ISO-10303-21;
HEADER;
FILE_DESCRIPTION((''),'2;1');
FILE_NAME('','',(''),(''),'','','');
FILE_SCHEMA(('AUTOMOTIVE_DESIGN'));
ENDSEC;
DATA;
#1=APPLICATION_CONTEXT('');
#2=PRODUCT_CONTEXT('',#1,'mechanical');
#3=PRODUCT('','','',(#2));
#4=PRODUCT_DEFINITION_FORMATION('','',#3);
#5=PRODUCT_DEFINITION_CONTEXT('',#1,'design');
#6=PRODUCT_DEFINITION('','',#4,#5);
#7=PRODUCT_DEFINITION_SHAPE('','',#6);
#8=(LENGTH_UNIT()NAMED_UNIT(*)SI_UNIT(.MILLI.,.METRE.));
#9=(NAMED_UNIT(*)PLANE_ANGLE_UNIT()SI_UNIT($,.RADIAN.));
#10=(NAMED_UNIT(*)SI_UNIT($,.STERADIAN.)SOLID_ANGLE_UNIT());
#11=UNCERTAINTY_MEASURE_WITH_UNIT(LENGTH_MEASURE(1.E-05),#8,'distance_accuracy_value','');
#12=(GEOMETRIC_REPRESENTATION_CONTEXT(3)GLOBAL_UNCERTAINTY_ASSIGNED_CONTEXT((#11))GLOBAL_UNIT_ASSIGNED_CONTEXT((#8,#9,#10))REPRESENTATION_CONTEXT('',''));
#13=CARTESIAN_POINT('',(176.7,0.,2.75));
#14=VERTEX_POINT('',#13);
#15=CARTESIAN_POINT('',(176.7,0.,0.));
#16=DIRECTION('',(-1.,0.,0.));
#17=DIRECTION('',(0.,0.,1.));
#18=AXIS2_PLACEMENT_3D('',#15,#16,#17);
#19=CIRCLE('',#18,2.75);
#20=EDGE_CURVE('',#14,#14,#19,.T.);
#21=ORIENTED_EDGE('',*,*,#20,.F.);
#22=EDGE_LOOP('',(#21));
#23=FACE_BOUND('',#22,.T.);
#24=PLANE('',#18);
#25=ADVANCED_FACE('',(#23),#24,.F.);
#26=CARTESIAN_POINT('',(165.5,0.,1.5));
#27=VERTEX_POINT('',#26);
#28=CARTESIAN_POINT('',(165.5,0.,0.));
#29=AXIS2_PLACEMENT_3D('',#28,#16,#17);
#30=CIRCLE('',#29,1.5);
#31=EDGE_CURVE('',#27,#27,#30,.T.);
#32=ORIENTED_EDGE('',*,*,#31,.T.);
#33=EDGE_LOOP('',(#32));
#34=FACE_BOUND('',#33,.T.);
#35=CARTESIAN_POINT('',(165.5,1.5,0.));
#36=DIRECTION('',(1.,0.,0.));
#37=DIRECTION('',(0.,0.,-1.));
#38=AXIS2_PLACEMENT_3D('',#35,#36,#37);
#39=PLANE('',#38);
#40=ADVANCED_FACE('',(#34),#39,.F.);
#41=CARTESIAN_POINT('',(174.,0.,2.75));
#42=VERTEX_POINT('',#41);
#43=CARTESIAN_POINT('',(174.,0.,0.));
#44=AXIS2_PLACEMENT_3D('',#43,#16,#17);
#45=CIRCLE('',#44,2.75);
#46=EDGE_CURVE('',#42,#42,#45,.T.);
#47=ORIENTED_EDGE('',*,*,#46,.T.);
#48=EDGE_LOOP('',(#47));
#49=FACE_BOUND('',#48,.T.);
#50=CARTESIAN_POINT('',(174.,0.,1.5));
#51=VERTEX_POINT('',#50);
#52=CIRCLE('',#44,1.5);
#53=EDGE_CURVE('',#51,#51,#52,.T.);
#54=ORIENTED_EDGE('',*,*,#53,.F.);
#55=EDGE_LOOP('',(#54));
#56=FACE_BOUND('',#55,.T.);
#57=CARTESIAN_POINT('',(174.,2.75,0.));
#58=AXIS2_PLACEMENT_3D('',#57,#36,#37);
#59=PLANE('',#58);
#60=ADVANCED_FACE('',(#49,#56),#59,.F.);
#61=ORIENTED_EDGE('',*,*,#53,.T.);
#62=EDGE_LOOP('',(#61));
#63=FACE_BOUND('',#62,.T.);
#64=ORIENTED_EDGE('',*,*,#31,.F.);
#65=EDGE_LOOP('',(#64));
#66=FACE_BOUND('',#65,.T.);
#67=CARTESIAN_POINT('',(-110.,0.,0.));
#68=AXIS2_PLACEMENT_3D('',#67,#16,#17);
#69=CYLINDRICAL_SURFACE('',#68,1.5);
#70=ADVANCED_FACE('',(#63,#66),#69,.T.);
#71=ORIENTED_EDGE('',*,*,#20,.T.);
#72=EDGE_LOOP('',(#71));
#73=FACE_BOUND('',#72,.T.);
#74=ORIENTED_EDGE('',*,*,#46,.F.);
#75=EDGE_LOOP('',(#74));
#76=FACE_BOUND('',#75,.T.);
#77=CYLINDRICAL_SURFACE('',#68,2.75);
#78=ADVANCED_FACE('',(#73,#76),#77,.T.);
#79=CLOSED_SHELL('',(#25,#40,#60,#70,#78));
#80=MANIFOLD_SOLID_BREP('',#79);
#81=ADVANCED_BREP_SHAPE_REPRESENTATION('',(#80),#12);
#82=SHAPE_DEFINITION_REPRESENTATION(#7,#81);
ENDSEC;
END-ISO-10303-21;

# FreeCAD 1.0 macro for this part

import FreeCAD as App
import Part
import Sketcher
Q = App.Units.Quantity


def add_polygon(sketch, points):
    """Adds a closed chain of lines whose ends are joined by coincident constraints."""
    first, n = sketch.GeometryCount, len(points)
    for a, b in zip(points, points[1:] + points[:1]):
        sketch.addGeometry(Part.LineSegment(App.Vector(*a, 0), App.Vector(*b, 0)), False)
    for i in range(n):
        sketch.addConstraint(Sketcher.Constraint("Coincident", first + i, 2, first + (i + 1) % n, 1))

doc = App.newDocument("Part")
params = doc.addObject("Spreadsheet::Sheet", "Params")
for row, (alias, value) in enumerate([
    ("sketch1_width", "11.2 mm"),
    ("sketch1_width2", "2.7 mm"),
    ("sketch1_height", "1.5 mm"),
    ("sketch1_height2", "2.75 mm"),
    ("revolution_angle", "360 deg"),
], start=1):
    params.set(f"A{row}", alias)
    params.set(f"B{row}", "=" + value)
    params.setAlias(f"B{row}", alias)

body = doc.addObject("PartDesign::Body", "Body")

sketch1 = doc.addObject("Sketcher::SketchObject", "Sketch")
body.addObject(sketch1)
sketch1.AttachmentSupport = (doc.XY_Plane, [""])
sketch1.MapMode = "FlatFace"
add_polygon(sketch1, [(165.5, 0), (176.7, 0), (176.7, 2.8), (174, 2.8), (174, 1.5), (165.5, 1.5)])
sketch1.addConstraint([
    Sketcher.Constraint("Horizontal", 0),
    Sketcher.Constraint("Vertical", 1),
    Sketcher.Constraint("Horizontal", 2),
    Sketcher.Constraint("Vertical", 3),
    Sketcher.Constraint("Horizontal", 4),
    Sketcher.Constraint("Vertical", 5),
    Sketcher.Constraint("PointOnObject", 0, 2, -1),
    Sketcher.Constraint("DistanceX", 0, 1, 0, 2, Q("11.2 mm")),
    Sketcher.Constraint("DistanceX", 2, 2, 2, 1, Q("2.7 mm")),
    Sketcher.Constraint("DistanceY", 5, 2, 5, 1, Q("1.5 mm")),
    Sketcher.Constraint("DistanceX", -1, 1, 2, 2, Q("174 mm")),
    Sketcher.Constraint("DistanceY", 1, 1, 1, 2, Q("2.75 mm")),
])
sketch1.setExpression("Constraints[13]", "Params.sketch1_width")
sketch1.setExpression("Constraints[14]", "Params.sketch1_width2")
sketch1.setExpression("Constraints[15]", "Params.sketch1_height")
sketch1.setExpression("Constraints[17]", "Params.sketch1_height2")
revolution = doc.addObject("PartDesign::Revolution", "Revolution")
body.addObject(revolution)
revolution.Profile = sketch1
revolution.ReferenceAxis = (sketch1, ["H_Axis"])
revolution.setExpression("Angle", "Params.revolution_angle")

doc.recompute()
